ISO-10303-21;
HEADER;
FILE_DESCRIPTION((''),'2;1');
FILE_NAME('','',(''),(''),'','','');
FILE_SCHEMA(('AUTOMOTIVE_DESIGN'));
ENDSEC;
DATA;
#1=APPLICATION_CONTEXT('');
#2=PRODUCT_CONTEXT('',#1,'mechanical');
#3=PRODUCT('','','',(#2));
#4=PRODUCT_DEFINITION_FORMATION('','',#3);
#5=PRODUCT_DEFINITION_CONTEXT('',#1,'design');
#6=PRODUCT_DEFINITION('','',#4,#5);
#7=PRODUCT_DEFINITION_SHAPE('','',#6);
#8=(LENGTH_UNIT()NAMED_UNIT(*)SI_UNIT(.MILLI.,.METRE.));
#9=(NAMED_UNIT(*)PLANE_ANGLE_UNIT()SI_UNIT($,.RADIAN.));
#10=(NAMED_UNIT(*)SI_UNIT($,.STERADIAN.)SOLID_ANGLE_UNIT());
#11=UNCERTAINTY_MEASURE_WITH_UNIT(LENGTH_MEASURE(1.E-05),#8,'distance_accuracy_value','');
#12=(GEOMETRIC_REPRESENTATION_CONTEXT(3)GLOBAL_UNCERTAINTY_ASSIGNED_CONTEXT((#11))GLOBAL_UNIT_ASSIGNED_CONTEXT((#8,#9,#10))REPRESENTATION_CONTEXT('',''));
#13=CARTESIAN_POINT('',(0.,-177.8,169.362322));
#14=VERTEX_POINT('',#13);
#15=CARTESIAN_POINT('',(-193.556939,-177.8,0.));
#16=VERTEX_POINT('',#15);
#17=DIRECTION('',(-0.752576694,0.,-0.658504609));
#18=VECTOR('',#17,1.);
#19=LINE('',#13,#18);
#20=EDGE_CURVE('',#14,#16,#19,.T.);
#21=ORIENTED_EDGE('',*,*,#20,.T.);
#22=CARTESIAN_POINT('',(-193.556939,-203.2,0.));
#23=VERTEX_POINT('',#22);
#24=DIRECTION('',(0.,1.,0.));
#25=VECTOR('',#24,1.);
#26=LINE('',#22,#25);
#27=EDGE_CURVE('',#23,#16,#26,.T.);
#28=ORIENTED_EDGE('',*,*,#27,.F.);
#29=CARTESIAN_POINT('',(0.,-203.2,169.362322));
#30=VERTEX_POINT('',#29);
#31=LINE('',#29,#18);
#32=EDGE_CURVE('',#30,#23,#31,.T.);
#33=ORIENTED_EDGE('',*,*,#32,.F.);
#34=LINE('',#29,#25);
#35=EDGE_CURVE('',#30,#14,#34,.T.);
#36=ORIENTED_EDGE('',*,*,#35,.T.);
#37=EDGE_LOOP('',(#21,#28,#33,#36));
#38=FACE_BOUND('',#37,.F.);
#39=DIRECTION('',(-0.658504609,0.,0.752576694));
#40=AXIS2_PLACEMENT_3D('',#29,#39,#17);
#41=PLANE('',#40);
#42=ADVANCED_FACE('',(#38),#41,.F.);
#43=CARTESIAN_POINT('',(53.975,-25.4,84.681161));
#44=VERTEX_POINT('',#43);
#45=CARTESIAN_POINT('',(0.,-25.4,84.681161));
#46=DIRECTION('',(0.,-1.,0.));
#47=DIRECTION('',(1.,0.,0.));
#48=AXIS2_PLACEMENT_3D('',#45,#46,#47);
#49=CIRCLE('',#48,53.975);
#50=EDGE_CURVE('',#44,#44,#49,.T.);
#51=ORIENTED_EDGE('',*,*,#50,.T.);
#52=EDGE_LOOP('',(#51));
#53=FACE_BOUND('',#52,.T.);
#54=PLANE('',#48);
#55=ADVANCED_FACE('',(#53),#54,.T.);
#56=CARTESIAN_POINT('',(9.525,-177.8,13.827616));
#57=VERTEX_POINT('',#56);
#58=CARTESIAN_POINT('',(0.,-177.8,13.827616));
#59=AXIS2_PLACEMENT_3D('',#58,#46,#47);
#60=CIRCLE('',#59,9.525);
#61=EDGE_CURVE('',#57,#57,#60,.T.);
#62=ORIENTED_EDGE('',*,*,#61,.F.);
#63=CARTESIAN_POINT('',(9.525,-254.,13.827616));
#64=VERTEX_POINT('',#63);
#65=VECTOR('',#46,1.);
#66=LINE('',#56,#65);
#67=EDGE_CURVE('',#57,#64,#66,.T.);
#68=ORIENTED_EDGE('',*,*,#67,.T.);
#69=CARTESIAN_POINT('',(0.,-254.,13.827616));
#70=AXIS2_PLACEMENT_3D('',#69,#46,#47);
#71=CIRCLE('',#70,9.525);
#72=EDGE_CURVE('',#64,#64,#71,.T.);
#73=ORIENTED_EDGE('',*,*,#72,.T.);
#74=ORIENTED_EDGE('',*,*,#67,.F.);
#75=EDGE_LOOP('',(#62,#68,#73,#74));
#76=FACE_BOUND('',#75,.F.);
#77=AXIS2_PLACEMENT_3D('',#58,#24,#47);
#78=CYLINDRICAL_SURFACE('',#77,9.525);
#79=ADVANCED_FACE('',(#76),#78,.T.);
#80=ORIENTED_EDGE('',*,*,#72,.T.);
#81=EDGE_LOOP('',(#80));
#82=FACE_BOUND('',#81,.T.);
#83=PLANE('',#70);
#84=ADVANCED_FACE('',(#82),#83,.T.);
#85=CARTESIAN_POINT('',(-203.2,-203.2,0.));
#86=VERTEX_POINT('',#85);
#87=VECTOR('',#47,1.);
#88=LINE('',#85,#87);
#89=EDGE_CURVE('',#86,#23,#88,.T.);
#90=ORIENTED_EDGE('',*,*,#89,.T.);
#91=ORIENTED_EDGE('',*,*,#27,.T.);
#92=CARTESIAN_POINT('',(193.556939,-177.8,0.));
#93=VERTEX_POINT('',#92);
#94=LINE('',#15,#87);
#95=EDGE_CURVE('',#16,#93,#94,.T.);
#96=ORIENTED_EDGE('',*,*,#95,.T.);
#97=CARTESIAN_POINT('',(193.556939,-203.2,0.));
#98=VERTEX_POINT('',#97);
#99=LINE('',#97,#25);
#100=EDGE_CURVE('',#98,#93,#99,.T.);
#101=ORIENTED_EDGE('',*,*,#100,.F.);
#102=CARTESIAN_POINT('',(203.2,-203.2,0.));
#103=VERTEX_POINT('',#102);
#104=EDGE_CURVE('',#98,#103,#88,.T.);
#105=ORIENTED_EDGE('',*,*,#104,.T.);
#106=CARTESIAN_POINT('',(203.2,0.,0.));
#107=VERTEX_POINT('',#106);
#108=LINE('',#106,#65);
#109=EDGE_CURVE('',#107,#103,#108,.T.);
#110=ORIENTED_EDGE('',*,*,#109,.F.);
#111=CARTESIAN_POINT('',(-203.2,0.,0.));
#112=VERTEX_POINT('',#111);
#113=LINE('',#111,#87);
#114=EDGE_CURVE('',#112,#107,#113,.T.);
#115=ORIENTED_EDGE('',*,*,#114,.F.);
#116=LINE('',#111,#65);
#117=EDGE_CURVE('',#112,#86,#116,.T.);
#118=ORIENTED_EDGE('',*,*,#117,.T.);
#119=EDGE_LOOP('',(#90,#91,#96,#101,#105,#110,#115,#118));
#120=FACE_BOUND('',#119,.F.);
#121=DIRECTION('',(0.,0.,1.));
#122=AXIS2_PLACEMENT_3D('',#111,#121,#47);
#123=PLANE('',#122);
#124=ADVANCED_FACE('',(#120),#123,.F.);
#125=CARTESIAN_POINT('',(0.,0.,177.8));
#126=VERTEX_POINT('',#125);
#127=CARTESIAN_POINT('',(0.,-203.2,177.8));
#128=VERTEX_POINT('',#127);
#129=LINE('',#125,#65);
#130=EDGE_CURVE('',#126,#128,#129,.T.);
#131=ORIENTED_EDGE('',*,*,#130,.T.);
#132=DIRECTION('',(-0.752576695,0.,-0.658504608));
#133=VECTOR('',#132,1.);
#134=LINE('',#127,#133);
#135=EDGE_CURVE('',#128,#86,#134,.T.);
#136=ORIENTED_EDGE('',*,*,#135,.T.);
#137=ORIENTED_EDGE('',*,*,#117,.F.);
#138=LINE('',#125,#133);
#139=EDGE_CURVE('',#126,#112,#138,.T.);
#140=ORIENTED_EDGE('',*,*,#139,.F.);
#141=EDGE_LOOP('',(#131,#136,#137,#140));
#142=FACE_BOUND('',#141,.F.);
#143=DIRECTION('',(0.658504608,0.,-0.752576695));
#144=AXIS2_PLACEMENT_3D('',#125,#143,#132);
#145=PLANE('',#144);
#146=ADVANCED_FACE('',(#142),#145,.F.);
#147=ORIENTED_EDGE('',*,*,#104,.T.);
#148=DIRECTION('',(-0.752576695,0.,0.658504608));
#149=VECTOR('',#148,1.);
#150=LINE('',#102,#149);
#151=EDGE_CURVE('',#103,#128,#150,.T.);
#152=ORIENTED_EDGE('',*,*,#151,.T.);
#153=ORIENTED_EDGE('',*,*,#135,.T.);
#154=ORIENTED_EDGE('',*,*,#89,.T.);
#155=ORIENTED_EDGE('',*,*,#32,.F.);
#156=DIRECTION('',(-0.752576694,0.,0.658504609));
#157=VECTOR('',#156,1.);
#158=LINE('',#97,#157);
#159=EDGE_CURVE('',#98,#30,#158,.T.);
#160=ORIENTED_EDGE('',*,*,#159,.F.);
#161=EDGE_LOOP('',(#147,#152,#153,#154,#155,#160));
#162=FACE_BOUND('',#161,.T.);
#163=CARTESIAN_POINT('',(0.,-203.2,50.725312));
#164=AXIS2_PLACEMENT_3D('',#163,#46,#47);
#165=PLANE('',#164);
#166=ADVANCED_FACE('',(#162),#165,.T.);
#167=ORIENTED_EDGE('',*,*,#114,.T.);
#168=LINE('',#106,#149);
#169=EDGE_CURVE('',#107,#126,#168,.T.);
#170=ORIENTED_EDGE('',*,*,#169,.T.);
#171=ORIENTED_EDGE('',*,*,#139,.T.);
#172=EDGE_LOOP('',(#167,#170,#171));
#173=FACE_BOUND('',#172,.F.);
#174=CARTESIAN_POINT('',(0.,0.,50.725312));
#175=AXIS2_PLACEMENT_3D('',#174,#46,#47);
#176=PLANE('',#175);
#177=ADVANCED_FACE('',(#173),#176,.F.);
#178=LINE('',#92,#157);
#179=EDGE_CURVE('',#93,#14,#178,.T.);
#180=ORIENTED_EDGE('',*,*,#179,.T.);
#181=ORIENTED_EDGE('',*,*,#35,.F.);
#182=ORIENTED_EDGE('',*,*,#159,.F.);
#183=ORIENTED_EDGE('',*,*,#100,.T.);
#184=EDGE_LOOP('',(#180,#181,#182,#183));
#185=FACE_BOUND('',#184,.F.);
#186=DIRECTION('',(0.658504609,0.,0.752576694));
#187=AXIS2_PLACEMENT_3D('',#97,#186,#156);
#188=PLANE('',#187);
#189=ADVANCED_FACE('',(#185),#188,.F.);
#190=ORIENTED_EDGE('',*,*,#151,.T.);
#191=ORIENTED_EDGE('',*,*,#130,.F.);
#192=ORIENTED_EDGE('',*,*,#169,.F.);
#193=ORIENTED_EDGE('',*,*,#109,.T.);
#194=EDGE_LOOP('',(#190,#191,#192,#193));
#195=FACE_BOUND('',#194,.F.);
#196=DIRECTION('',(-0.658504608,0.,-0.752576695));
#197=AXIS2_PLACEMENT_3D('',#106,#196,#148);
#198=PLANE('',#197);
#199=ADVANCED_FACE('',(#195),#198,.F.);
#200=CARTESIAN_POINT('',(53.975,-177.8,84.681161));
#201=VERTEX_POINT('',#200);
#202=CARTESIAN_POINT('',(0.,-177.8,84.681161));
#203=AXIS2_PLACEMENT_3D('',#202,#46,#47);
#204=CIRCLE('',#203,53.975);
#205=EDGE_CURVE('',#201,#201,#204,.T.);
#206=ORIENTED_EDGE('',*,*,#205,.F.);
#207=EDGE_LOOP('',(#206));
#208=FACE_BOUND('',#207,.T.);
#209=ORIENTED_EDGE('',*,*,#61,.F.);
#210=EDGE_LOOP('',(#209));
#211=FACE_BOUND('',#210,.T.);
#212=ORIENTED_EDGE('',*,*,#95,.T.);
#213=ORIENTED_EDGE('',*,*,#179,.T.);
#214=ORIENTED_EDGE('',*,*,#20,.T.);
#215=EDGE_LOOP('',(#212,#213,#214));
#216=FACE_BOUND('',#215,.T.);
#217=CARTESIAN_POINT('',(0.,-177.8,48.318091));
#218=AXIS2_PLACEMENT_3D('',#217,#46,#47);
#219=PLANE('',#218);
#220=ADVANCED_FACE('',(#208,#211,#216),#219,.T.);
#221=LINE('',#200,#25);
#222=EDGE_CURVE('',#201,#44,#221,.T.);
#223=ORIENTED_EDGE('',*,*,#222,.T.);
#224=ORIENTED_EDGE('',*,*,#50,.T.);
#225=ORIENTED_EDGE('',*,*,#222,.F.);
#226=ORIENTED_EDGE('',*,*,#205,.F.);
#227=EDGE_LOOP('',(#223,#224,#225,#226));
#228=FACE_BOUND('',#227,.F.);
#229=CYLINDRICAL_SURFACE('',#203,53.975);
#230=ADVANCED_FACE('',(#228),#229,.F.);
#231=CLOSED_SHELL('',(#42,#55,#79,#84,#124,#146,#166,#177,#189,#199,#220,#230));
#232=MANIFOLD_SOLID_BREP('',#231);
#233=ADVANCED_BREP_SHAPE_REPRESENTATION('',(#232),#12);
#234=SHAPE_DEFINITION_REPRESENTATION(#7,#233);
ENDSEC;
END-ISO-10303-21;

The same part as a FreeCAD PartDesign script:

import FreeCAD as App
import Part
import Sketcher

V = App.Vector
Q = App.Units.Quantity

doc = App.newDocument("Part")
params = doc.addObject("Spreadsheet::Sheet", "Params")
for row, (alias, value) in enumerate([
    ("sketch1_width", "16 in"),
    ("pad1_length", "8 in"),
    ("pocket1_length", "1 in"),
    ("sketch3_diameter", "4.25 in"),
    ("pocket2_length", "6 in"),
    ("sketch4_diameter", "0.75 in"),
    ("pad2_length", "3 in"),
], start=1):
    params.set(f"A{row}", alias)
    params.set(f"B{row}", "=" + value)
    params.setAlias(f"B{row}", alias)

body = doc.addObject("PartDesign::Body", "Body")

# Sketch on XZ plane
sketch1 = body.newObject("Sketcher::SketchObject", "Sketch")
sketch1.AttachmentSupport = (doc.getObject("XZ_Plane"), [""])
sketch1.MapMode = "FlatFace"
sketch1.addGeometry([
    Part.LineSegment(V(0, 178, 0), V(-203, 0, 0)),
    Part.LineSegment(V(-203, 0, 0), V(203, 0, 0)),
    Part.LineSegment(V(203, 0, 0), V(0, 178, 0)),
], False)
sketch1.addConstraint([
    Sketcher.Constraint("Coincident", 0, 2, 1, 1),
    Sketcher.Constraint("Coincident", 1, 2, 2, 1),
    Sketcher.Constraint("Coincident", 2, 2, 0, 1),
    Sketcher.Constraint("Horizontal", 1),
    Sketcher.Constraint("Symmetric", 0, 2, 1, 2, -1, 1),
    Sketcher.Constraint("PointOnObject", 2, 2, -2),
    Sketcher.Constraint("DistanceX", 1, 1, 1, 2, Q("16 in")),
    Sketcher.Constraint("DistanceY", -1, 1, 2, 2, Q("7 in")),
])
sketch1.setExpression("Constraints[6]", "Params.sketch1_width")
pad1 = body.newObject("PartDesign::Pad", "Pad")
pad1.Profile = sketch1
pad1.setExpression("Length", "Params.pad1_length")

# Sketch on XZ plane
sketch2 = body.newObject("Sketcher::SketchObject", "Sketch001")
sketch2.AttachmentSupport = (doc.getObject("XZ_Plane"), [""])
sketch2.MapMode = "FlatFace"
sketch2.AttachmentOffset = App.Placement(V(0, 0, 8 * 25.4), App.Rotation())
sketch2.addGeometry([
    Part.LineSegment(V(0, 169, 0), V(-194, 0, 0)),
    Part.LineSegment(V(-194, 0, 0), V(194, 0, 0)),
    Part.LineSegment(V(194, 0, 0), V(0, 169, 0)),
], False)
sketch2.addConstraint([
    Sketcher.Constraint("Coincident", 0, 2, 1, 1),
    Sketcher.Constraint("Coincident", 1, 2, 2, 1),
    Sketcher.Constraint("Coincident", 2, 2, 0, 1),
    Sketcher.Constraint("Horizontal", 1),
    Sketcher.Constraint("Symmetric", 0, 2, 1, 2, -1, 1),
    Sketcher.Constraint("PointOnObject", 2, 2, -2),
    Sketcher.Constraint("DistanceX", 1, 1, 1, 2, Q("387.113878 mm")),
    Sketcher.Constraint("Distance", 0, Q("257.192311 mm")),
])
pocket1 = body.newObject("PartDesign::Pocket", "Pocket")
pocket1.Profile = sketch2
pocket1.setExpression("Length", "Params.pocket1_length")

# Sketch on XZ plane
sketch3 = body.newObject("Sketcher::SketchObject", "Sketch002")
sketch3.AttachmentSupport = (doc.getObject("XZ_Plane"), [""])
sketch3.MapMode = "FlatFace"
sketch3.AttachmentOffset = App.Placement(V(0, 0, 7 * 25.4), App.Rotation())
sketch3.addGeometry(Part.Circle(V(0, 85, 0), V(0, 0, 1), 54), False)
sketch3.addConstraint([
    Sketcher.Constraint("PointOnObject", 0, 3, -2),
    Sketcher.Constraint("Diameter", 0, Q("4.25 in")),
    Sketcher.Constraint("DistanceY", -1, 1, 0, 3, Q("84.681161 mm")),
])
sketch3.setExpression("Constraints[1]", "Params.sketch3_diameter")
pocket2 = body.newObject("PartDesign::Pocket", "Pocket001")
pocket2.Profile = sketch3
pocket2.setExpression("Length", "Params.pocket2_length")

# Sketch on XZ plane
sketch4 = body.newObject("Sketcher::SketchObject", "Sketch003")
sketch4.AttachmentSupport = (doc.getObject("XZ_Plane"), [""])
sketch4.MapMode = "FlatFace"
sketch4.AttachmentOffset = App.Placement(V(0, 0, 7 * 25.4), App.Rotation())
sketch4.addGeometry(Part.Circle(V(0, 14, 0), V(0, 0, 1), 10), False)
sketch4.addConstraint([
    Sketcher.Constraint("PointOnObject", 0, 3, -2),
    Sketcher.Constraint("Diameter", 0, Q("0.75 in")),
    Sketcher.Constraint("DistanceY", -1, 1, 0, 3, Q("13.827616 mm")),
])
sketch4.setExpression("Constraints[1]", "Params.sketch4_diameter")
pad2 = body.newObject("PartDesign::Pad", "Pad001")
pad2.Profile = sketch4
pad2.setExpression("Length", "Params.pad2_length")

doc.recompute()
